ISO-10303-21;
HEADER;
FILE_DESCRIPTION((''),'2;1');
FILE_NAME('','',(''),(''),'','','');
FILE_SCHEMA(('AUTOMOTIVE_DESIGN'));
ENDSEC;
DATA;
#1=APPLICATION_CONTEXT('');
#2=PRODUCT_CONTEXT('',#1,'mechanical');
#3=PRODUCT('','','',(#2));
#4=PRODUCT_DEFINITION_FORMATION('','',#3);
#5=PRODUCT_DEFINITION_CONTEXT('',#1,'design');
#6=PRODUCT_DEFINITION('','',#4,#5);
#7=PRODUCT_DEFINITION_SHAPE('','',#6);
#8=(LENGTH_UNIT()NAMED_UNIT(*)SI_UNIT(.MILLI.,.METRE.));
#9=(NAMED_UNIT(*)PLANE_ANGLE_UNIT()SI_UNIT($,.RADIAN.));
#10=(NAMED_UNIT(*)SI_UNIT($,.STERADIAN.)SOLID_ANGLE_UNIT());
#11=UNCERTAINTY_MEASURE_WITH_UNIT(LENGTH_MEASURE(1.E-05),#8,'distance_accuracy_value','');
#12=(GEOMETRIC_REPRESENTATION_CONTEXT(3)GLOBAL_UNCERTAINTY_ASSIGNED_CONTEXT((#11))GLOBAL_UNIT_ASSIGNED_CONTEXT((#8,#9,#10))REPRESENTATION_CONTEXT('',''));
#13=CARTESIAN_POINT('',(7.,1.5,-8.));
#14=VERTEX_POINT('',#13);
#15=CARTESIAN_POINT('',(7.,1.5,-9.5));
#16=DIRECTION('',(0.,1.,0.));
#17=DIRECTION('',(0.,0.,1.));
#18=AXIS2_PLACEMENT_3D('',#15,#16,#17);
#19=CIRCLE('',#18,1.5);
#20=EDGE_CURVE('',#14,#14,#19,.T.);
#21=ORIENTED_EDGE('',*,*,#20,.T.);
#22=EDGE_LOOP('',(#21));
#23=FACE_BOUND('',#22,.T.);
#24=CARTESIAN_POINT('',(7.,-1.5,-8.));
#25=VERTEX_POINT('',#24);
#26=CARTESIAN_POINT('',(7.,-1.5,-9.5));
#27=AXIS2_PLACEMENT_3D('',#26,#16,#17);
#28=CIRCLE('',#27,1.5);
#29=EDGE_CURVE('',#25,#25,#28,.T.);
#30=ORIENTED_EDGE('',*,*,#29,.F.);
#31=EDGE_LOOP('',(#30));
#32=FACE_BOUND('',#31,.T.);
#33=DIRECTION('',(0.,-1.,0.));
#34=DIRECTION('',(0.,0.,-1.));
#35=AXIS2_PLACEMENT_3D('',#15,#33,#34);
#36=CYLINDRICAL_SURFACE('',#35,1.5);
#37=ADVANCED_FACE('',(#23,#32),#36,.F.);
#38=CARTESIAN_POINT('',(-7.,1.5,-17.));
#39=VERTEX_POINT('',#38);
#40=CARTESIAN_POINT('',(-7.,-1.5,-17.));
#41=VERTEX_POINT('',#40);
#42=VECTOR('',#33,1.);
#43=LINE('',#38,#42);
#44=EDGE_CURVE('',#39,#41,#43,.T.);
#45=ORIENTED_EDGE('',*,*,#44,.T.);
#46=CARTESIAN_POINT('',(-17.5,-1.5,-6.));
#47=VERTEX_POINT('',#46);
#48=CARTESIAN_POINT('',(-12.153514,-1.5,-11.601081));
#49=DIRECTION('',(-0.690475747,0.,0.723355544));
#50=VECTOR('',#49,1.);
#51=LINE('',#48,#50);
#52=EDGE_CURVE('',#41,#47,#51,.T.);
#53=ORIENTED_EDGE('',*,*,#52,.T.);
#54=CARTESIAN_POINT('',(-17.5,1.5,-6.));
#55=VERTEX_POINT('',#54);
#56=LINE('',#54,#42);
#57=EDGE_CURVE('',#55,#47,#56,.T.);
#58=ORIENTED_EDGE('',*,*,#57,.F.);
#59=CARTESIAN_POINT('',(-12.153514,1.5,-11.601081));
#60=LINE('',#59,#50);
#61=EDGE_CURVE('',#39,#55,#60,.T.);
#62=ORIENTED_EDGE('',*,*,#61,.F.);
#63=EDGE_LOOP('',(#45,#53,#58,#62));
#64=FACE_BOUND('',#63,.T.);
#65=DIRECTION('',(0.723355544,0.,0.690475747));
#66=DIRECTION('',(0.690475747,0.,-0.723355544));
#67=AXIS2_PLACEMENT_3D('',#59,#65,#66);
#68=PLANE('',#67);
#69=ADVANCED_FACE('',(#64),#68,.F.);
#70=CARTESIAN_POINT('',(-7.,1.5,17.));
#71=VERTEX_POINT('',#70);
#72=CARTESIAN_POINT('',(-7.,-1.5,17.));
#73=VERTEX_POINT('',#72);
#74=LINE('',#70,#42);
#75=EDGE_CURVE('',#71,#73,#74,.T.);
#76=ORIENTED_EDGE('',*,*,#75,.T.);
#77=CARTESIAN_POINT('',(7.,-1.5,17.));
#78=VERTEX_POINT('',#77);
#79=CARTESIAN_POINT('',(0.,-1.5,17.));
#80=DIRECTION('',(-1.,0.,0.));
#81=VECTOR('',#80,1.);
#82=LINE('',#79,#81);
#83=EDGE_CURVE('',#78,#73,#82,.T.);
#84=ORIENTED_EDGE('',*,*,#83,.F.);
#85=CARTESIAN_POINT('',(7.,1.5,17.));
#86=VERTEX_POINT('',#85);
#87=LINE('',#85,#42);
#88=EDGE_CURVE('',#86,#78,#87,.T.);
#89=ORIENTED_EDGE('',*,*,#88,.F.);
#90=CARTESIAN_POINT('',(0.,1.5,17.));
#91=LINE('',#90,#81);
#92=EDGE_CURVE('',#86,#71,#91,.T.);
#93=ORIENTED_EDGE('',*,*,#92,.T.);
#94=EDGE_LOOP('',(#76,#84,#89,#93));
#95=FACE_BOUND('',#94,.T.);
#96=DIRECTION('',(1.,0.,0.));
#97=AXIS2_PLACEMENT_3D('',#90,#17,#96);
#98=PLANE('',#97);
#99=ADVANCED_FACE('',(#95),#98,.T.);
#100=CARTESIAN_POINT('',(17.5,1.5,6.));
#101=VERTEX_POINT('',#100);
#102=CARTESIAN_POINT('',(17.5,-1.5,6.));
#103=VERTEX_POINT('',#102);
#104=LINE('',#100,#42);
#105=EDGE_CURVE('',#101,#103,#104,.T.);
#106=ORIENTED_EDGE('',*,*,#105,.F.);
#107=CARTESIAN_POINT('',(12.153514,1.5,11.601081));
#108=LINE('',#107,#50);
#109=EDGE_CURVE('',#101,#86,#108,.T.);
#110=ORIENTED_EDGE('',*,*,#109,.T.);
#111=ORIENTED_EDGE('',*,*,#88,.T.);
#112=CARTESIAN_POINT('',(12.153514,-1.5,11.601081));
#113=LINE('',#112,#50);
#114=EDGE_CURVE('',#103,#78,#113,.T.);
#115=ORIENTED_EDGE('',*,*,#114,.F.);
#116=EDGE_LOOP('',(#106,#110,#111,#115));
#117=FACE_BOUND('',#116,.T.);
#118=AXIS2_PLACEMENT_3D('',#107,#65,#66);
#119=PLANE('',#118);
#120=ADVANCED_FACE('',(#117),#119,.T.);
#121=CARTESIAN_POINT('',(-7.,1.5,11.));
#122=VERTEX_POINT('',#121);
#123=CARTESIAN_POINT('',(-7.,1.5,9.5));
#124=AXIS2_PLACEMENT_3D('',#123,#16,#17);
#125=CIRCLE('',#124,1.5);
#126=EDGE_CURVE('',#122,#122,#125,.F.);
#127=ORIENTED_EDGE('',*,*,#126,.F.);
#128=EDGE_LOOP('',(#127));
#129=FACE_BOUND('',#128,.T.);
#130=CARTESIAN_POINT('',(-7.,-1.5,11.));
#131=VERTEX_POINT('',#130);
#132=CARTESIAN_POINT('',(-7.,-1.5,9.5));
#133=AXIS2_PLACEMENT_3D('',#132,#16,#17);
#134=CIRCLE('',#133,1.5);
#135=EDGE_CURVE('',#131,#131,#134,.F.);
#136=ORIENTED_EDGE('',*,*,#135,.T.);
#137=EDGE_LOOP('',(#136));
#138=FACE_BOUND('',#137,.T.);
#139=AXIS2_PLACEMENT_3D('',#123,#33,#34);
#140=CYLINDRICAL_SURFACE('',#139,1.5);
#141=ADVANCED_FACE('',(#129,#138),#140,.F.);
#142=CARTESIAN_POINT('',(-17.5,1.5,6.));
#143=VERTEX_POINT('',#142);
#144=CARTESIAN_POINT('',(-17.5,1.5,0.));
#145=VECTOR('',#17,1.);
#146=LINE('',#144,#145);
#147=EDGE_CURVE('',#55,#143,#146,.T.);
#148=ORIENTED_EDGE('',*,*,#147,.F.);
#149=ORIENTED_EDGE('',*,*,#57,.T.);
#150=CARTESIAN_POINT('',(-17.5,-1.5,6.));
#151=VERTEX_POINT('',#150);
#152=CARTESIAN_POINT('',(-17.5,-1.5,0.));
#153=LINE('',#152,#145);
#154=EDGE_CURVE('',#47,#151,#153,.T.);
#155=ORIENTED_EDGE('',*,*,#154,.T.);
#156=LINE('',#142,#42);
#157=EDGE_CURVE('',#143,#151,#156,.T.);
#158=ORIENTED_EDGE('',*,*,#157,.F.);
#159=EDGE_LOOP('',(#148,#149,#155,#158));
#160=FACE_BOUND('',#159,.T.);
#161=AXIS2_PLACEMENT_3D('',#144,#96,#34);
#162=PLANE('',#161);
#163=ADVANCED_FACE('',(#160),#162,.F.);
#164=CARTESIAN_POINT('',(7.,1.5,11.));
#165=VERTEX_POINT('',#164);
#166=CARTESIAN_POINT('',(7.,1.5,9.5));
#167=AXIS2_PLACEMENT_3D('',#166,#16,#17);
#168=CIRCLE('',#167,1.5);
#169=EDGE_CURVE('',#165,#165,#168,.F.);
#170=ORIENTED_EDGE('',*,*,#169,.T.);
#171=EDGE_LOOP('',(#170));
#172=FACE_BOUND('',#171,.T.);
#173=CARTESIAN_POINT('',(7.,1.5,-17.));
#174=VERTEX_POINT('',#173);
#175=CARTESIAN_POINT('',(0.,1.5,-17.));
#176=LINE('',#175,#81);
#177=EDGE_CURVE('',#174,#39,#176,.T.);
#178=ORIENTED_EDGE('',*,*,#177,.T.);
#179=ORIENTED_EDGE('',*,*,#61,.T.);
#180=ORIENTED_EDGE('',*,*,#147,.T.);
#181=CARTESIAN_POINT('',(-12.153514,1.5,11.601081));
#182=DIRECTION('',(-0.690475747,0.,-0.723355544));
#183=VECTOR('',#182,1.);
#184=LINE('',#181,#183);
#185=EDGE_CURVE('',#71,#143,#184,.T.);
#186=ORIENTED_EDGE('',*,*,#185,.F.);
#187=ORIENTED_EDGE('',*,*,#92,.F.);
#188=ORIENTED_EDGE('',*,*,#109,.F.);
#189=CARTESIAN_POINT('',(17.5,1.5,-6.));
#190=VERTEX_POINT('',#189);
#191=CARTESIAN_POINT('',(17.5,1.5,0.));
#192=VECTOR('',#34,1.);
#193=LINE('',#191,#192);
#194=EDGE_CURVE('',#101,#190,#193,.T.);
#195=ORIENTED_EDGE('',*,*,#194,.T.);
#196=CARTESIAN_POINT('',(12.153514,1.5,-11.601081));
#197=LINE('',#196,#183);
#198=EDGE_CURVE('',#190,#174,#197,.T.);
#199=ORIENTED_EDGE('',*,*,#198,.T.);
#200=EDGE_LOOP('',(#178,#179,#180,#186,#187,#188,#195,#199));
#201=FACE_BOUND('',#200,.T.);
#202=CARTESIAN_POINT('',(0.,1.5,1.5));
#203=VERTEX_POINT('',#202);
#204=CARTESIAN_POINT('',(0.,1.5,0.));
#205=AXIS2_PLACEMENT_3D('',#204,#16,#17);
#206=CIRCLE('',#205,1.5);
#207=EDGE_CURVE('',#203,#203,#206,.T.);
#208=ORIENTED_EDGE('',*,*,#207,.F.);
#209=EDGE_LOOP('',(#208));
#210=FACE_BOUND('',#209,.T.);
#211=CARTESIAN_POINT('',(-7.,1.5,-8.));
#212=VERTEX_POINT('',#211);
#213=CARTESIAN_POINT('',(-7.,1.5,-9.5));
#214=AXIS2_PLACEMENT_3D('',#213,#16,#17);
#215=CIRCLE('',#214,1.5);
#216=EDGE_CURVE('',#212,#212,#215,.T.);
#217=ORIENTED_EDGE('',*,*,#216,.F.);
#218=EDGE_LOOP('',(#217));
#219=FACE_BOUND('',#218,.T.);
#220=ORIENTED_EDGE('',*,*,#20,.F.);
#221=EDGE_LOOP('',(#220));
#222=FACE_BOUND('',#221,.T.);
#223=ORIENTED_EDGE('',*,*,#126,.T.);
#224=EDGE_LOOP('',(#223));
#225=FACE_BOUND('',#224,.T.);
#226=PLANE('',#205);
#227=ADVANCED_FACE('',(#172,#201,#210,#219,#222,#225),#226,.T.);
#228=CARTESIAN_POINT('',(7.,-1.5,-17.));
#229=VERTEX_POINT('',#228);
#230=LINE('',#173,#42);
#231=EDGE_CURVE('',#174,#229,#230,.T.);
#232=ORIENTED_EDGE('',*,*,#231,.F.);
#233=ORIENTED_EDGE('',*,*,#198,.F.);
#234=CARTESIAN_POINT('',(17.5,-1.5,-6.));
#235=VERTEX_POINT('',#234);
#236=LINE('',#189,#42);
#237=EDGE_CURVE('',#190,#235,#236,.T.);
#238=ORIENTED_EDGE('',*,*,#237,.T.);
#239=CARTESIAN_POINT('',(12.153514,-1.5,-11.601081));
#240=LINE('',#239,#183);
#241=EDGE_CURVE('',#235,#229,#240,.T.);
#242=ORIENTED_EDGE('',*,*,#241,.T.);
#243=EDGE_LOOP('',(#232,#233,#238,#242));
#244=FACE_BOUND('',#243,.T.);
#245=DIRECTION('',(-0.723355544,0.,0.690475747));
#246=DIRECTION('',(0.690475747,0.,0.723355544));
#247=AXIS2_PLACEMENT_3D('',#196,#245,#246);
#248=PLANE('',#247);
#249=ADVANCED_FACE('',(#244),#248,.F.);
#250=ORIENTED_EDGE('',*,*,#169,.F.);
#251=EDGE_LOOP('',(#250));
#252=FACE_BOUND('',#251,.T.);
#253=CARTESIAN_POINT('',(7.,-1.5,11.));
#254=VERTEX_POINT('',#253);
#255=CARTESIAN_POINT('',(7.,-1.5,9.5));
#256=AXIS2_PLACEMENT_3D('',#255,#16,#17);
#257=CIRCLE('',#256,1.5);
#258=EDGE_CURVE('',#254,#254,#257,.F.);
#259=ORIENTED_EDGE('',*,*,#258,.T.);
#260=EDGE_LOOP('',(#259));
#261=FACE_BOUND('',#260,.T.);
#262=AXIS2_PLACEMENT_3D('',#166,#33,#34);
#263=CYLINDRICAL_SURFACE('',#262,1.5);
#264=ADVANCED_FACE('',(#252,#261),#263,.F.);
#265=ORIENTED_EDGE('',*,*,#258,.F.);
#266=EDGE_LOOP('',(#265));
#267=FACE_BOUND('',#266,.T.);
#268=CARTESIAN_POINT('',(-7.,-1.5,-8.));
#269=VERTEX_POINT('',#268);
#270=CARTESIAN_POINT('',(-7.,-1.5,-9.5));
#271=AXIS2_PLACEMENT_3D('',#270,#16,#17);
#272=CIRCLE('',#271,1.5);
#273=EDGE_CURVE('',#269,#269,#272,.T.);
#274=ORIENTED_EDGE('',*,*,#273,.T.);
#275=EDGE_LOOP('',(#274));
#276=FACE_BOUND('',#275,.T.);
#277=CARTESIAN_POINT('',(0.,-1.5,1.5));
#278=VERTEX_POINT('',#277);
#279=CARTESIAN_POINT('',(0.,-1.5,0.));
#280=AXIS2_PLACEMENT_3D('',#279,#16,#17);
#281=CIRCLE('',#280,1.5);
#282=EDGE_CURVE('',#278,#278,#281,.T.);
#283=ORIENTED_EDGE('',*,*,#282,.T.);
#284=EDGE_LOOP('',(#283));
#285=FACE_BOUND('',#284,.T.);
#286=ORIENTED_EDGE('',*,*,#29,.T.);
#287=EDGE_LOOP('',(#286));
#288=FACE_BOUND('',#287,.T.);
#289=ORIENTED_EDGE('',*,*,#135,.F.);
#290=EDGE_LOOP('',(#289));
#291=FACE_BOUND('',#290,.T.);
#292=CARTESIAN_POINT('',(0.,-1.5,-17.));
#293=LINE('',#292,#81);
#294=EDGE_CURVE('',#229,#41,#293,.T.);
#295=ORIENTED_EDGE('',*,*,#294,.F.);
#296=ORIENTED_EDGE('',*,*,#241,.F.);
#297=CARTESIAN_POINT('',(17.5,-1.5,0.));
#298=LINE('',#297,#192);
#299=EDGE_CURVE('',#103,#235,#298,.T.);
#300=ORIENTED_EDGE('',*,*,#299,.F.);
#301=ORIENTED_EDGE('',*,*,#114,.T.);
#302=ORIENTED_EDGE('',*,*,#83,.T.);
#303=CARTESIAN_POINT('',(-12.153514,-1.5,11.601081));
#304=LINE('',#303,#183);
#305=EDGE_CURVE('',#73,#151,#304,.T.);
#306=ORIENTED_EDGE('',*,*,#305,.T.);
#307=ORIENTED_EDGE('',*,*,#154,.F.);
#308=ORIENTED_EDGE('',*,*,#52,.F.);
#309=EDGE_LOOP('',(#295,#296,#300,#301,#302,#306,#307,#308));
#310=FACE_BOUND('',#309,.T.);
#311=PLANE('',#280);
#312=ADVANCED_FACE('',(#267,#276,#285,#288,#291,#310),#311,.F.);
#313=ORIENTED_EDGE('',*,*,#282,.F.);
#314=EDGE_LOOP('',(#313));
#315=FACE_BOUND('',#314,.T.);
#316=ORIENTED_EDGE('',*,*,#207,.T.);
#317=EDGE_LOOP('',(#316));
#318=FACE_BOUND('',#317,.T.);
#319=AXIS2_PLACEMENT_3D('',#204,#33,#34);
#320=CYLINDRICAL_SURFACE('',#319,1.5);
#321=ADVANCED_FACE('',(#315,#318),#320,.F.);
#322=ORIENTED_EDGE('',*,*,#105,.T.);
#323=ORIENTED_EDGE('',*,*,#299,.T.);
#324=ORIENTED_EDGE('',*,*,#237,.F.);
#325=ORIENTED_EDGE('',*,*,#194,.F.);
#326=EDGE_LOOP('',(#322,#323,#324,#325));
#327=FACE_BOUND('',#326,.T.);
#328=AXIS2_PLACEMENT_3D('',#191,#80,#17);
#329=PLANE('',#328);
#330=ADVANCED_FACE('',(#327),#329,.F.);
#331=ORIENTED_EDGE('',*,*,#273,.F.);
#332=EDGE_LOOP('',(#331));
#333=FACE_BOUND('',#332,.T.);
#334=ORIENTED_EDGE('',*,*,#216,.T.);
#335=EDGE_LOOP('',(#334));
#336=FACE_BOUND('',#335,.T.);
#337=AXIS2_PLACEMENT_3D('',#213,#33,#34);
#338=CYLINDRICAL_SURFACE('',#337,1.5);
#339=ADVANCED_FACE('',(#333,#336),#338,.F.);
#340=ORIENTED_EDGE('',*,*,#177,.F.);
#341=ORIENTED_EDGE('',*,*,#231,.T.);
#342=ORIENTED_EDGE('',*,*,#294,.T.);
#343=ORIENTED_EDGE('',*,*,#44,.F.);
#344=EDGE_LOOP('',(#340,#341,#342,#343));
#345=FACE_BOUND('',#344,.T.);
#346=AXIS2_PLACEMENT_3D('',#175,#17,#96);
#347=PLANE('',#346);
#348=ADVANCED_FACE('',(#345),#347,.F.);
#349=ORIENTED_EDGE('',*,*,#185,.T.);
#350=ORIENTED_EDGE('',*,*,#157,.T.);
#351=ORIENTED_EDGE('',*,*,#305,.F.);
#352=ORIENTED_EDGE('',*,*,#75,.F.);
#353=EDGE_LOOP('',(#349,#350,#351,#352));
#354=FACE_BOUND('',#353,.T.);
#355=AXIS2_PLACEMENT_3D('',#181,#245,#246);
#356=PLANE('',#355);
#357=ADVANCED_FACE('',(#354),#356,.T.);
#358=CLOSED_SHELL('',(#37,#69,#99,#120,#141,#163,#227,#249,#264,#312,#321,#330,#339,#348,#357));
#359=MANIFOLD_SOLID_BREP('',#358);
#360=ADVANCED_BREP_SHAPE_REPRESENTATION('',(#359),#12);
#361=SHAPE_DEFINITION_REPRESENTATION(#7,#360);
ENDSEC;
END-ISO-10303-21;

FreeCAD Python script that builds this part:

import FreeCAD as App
import Part
import Sketcher

V = App.Vector

doc = App.newDocument("Part")
body = doc.addObject("PartDesign::Body", "Body")

sketch1 = body.newObject("Sketcher::SketchObject", "Sketch")
sketch1.AttachmentSupport = (doc.getObject("XZ_Plane"), [""])
sketch1.MapMode = "FlatFace"
sketch1.addGeometry([
    Part.LineSegment(V(17.5, -6, 0), V(7, -17, 0)),
    Part.LineSegment(V(7, -17, 0), V(-7, -17, 0)),
    Part.LineSegment(V(-7, -17, 0), V(-17.5, -6, 0)),
    Part.LineSegment(V(-17.5, -6, 0), V(-17.5, 6, 0)),
    Part.LineSegment(V(-17.5, 6, 0), V(-7, 17, 0)),
    Part.LineSegment(V(-7, 17, 0), V(7, 17, 0)),
    Part.LineSegment(V(7, 17, 0), V(17.5, 6, 0)),
    Part.LineSegment(V(17.5, 6, 0), V(17.5, -6, 0)),
    Part.Circle(V(-7, 9.5, 0), V(0, 0, 1), 1.5),
    Part.Circle(V(7, 9.5, 0), V(0, 0, 1), 1.5),
    Part.Circle(V(-7, -9.5, 0), V(0, 0, 1), 1.5),
    Part.Circle(V(0, 0, 0), V(0, 0, 1), 1.5),
    Part.Circle(V(7, -9.5, 0), V(0, 0, 1), 1.5),
], False)
sketch1.addConstraint([
    Sketcher.Constraint("Coincident", 0, 2, 1, 1),
    Sketcher.Constraint("Coincident", 1, 2, 2, 1),
    Sketcher.Constraint("Coincident", 2, 2, 3, 1),
    Sketcher.Constraint("Coincident", 3, 2, 4, 1),
    Sketcher.Constraint("Coincident", 4, 2, 5, 1),
    Sketcher.Constraint("Coincident", 5, 2, 6, 1),
    Sketcher.Constraint("Coincident", 6, 2, 7, 1),
    Sketcher.Constraint("Coincident", 7, 2, 0, 1),
    Sketcher.Constraint("Horizontal", 1),
    Sketcher.Constraint("Vertical", 3),
    Sketcher.Constraint("Horizontal", 5),
    Sketcher.Constraint("Vertical", 7),
    Sketcher.Constraint("Coincident", 11, 3, -1, 1),
    Sketcher.Constraint("Equal", 8, 9),
    Sketcher.Constraint("Equal", 9, 10),
    Sketcher.Constraint("Equal", 10, 11),
    Sketcher.Constraint("Equal", 11, 12),
    Sketcher.Constraint("Symmetric", 9, 3, 10, 3, -1, 1),
    Sketcher.Constraint("Symmetric", 8, 3, 12, 3, -1, 1),
    Sketcher.Constraint("Symmetric", 0, 2, 4, 2, -1, 1),
    Sketcher.Constraint("Symmetric", 2, 2, 6, 2, -1, 1),
    Sketcher.Constraint("Symmetric", 8, 3, 9, 3, -2),
    Sketcher.Constraint("Parallel", 0, 4),
    Sketcher.Constraint("Parallel", 2, 6),
    Sketcher.Constraint("Horizontal", 3, 2, 6, 2),
    Sketcher.Constraint("Vertical", 12, 3, 0, 2),
    Sketcher.Constraint("Vertical", 10, 3, 1, 2),
    Sketcher.Constraint("Diameter", 8, 3.0),
    Sketcher.Constraint("DistanceX", 1, 2, 1, 1, 14.0),
    Sketcher.Constraint("DistanceY", 3, 1, 3, 2, 12.0),
    Sketcher.Constraint("DistanceY", 0, 2, -1, 1, 17.0),
    Sketcher.Constraint("DistanceY", 10, 3, 8, 3, 19.0),
    Sketcher.Constraint("DistanceX", 2, 2, -1, 1, 17.5),
])
pad1 = body.newObject("PartDesign::Pad", "Pad")
pad1.Profile = sketch1
pad1.Length = 3
pad1.Midplane = True

doc.recompute()
